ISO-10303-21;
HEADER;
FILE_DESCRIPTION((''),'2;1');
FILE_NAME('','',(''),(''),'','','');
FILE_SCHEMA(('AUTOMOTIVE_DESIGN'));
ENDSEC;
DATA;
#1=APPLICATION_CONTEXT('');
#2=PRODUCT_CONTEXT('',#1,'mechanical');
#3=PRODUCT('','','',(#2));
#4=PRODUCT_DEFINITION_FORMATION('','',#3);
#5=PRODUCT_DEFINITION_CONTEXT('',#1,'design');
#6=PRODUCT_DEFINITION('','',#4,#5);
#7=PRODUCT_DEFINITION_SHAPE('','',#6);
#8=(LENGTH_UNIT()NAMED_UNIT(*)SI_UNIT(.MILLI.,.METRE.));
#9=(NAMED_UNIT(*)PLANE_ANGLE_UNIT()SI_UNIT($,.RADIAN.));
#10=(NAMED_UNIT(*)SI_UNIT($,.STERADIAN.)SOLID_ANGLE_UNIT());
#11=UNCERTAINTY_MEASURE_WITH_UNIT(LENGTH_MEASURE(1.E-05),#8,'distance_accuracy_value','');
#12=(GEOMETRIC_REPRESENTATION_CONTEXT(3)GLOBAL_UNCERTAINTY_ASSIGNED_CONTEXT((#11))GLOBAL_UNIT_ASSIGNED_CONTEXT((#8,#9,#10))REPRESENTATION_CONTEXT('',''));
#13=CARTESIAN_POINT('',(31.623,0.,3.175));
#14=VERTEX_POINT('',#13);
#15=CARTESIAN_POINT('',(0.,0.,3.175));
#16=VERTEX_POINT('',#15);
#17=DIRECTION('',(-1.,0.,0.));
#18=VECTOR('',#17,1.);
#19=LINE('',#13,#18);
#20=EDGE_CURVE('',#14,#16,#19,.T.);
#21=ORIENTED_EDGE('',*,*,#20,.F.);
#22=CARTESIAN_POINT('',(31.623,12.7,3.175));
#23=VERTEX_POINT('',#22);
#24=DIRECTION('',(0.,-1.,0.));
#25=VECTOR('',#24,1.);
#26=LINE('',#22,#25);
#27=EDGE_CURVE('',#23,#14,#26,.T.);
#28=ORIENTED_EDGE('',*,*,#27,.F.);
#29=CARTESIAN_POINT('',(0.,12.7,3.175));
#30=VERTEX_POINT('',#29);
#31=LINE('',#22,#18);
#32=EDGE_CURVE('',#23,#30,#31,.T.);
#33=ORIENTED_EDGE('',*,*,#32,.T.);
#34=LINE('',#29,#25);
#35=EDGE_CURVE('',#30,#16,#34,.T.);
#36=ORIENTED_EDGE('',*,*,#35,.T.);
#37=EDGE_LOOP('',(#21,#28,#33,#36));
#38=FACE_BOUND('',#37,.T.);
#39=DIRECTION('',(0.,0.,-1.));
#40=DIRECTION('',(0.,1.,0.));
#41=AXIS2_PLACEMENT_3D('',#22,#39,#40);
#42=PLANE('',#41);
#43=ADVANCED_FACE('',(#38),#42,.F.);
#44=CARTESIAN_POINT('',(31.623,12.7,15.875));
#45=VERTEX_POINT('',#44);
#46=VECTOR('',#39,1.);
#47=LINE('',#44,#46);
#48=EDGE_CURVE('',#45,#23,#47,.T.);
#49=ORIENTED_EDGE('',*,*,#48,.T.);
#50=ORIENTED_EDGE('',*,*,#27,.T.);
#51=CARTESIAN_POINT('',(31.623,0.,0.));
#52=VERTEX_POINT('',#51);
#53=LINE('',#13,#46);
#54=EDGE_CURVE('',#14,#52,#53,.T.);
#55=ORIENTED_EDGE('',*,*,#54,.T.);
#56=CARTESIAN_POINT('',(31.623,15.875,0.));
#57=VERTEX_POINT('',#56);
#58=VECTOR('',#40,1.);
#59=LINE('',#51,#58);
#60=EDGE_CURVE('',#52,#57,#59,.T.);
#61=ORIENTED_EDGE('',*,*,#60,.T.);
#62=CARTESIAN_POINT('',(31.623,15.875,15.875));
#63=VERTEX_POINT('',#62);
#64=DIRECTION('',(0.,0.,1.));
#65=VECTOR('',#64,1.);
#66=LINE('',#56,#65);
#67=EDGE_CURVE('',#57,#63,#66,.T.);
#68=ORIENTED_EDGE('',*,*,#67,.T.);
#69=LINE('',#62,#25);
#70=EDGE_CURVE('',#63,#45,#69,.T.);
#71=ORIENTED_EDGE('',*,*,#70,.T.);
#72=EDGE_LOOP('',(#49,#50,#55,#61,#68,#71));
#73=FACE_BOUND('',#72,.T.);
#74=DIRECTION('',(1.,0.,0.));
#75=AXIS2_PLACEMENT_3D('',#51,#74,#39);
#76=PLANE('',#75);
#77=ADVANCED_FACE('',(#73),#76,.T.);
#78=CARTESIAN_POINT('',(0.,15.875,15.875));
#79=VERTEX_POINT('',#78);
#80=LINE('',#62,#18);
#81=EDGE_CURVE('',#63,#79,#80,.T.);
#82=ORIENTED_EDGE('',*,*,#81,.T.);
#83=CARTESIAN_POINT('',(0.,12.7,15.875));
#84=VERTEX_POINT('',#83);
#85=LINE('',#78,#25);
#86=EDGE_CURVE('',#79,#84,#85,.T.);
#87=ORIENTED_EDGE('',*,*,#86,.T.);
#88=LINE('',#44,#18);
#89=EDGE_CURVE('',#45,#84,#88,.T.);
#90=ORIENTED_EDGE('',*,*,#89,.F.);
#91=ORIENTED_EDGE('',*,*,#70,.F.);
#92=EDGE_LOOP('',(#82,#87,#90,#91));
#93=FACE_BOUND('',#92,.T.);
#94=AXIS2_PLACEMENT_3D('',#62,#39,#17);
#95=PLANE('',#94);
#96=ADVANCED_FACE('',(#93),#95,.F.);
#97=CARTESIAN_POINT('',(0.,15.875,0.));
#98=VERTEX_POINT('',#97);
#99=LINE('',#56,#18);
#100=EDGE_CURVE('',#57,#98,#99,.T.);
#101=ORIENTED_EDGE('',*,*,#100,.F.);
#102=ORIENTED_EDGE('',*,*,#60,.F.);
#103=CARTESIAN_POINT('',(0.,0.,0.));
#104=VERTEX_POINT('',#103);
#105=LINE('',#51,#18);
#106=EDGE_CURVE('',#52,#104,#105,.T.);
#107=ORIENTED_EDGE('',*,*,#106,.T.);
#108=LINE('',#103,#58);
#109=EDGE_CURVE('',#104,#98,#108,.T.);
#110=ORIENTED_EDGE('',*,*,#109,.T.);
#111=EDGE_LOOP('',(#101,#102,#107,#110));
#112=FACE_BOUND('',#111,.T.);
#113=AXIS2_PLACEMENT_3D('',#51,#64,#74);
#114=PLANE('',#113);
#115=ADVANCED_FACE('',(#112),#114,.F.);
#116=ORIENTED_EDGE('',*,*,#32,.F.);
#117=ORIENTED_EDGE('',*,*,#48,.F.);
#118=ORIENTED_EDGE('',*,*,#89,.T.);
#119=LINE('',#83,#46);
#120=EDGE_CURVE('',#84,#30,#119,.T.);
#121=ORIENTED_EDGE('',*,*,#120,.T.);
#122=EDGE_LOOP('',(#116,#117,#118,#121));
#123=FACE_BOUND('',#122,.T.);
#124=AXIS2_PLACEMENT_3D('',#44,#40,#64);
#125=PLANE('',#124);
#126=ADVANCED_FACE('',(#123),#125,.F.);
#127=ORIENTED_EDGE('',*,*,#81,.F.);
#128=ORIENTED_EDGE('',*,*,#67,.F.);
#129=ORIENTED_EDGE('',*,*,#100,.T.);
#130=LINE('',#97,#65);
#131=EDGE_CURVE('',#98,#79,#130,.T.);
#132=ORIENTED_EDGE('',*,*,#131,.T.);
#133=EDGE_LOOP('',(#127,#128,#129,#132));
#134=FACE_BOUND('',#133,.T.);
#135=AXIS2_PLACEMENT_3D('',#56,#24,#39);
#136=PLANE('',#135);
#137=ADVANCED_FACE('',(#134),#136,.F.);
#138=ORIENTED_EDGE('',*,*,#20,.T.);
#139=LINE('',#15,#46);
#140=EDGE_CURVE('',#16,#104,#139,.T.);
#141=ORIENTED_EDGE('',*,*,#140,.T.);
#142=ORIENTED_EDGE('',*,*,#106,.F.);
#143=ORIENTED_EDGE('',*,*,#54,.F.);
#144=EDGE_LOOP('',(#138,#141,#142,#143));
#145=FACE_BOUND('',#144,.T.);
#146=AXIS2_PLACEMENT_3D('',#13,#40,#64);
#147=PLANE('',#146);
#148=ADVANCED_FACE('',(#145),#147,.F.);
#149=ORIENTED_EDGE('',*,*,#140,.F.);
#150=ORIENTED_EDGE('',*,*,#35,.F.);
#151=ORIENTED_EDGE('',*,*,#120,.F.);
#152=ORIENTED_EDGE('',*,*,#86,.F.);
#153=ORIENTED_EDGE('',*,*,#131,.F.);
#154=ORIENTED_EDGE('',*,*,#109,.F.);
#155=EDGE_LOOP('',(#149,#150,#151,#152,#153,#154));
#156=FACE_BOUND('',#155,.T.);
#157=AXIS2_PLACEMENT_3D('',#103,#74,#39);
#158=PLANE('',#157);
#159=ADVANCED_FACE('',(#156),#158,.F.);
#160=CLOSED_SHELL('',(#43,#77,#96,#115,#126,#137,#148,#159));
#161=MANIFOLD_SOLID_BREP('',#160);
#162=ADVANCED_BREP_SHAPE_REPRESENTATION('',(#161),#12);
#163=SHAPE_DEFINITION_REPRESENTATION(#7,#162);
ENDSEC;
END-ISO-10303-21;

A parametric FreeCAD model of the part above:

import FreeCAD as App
import Part
import Sketcher

V = App.Vector
Q = App.Units.Quantity

doc = App.newDocument("Part")
body = doc.addObject("PartDesign::Body", "Body")

# Sketch on YZ plane
sketch1 = body.newObject("Sketcher::SketchObject", "Sketch")
sketch1.AttachmentSupport = (doc.getObject("YZ_Plane"), [""])
sketch1.MapMode = "FlatFace"
sketch1.addGeometry(Part.LineSegment(V(0, 0, 0), V(15.875, 0, 0)), False)
sketch1.addGeometry(Part.LineSegment(V(15.875, 0, 0), V(15.875, 15.875, 0)), False)
sketch1.addGeometry(Part.LineSegment(V(15.875, 15.875, 0), V(12.7, 15.875, 0)), False)
sketch1.addGeometry(Part.LineSegment(V(12.7, 15.875, 0), V(12.7, 3.175, 0)), False)
sketch1.addGeometry(Part.LineSegment(V(12.7, 3.175, 0), V(0, 3.175, 0)), False)
sketch1.addGeometry(Part.LineSegment(V(0, 3.175, 0), V(0, 0, 0)), False)
sketch1.addConstraint(Sketcher.Constraint("Coincident", 0, 2, 1, 1))
sketch1.addConstraint(Sketcher.Constraint("Coincident", 1, 2, 2, 1))
sketch1.addConstraint(Sketcher.Constraint("Coincident", 2, 2, 3, 1))
sketch1.addConstraint(Sketcher.Constraint("Coincident", 3, 2, 4, 1))
sketch1.addConstraint(Sketcher.Constraint("Coincident", 4, 2, 5, 1))
sketch1.addConstraint(Sketcher.Constraint("Coincident", 5, 2, 0, 1))
sketch1.addConstraint(Sketcher.Constraint("Horizontal", 0))
sketch1.addConstraint(Sketcher.Constraint("Vertical", 1))
sketch1.addConstraint(Sketcher.Constraint("Horizontal", 2))
sketch1.addConstraint(Sketcher.Constraint("Vertical", 3))
sketch1.addConstraint(Sketcher.Constraint("Horizontal", 4))
sketch1.addConstraint(Sketcher.Constraint("Vertical", 5))
sketch1.addConstraint(Sketcher.Constraint("Coincident", 5, 2, -1, 1))
sketch1.addConstraint(Sketcher.Constraint("Equal", 0, 1))
sketch1.addConstraint(Sketcher.Constraint("Equal", 4, 3))
sketch1.addConstraint(Sketcher.Constraint("DistanceX", 4, 2, 4, 1, Q("0.5 in")))
sketch1.addConstraint(Sketcher.Constraint("DistanceX", 0, 1, 0, 2, Q("0.625 in")))
pad1 = body.newObject("PartDesign::Pad", "Pad")
pad1.Profile = sketch1
pad1.Length = Q("1.245 in")

doc.recompute()
